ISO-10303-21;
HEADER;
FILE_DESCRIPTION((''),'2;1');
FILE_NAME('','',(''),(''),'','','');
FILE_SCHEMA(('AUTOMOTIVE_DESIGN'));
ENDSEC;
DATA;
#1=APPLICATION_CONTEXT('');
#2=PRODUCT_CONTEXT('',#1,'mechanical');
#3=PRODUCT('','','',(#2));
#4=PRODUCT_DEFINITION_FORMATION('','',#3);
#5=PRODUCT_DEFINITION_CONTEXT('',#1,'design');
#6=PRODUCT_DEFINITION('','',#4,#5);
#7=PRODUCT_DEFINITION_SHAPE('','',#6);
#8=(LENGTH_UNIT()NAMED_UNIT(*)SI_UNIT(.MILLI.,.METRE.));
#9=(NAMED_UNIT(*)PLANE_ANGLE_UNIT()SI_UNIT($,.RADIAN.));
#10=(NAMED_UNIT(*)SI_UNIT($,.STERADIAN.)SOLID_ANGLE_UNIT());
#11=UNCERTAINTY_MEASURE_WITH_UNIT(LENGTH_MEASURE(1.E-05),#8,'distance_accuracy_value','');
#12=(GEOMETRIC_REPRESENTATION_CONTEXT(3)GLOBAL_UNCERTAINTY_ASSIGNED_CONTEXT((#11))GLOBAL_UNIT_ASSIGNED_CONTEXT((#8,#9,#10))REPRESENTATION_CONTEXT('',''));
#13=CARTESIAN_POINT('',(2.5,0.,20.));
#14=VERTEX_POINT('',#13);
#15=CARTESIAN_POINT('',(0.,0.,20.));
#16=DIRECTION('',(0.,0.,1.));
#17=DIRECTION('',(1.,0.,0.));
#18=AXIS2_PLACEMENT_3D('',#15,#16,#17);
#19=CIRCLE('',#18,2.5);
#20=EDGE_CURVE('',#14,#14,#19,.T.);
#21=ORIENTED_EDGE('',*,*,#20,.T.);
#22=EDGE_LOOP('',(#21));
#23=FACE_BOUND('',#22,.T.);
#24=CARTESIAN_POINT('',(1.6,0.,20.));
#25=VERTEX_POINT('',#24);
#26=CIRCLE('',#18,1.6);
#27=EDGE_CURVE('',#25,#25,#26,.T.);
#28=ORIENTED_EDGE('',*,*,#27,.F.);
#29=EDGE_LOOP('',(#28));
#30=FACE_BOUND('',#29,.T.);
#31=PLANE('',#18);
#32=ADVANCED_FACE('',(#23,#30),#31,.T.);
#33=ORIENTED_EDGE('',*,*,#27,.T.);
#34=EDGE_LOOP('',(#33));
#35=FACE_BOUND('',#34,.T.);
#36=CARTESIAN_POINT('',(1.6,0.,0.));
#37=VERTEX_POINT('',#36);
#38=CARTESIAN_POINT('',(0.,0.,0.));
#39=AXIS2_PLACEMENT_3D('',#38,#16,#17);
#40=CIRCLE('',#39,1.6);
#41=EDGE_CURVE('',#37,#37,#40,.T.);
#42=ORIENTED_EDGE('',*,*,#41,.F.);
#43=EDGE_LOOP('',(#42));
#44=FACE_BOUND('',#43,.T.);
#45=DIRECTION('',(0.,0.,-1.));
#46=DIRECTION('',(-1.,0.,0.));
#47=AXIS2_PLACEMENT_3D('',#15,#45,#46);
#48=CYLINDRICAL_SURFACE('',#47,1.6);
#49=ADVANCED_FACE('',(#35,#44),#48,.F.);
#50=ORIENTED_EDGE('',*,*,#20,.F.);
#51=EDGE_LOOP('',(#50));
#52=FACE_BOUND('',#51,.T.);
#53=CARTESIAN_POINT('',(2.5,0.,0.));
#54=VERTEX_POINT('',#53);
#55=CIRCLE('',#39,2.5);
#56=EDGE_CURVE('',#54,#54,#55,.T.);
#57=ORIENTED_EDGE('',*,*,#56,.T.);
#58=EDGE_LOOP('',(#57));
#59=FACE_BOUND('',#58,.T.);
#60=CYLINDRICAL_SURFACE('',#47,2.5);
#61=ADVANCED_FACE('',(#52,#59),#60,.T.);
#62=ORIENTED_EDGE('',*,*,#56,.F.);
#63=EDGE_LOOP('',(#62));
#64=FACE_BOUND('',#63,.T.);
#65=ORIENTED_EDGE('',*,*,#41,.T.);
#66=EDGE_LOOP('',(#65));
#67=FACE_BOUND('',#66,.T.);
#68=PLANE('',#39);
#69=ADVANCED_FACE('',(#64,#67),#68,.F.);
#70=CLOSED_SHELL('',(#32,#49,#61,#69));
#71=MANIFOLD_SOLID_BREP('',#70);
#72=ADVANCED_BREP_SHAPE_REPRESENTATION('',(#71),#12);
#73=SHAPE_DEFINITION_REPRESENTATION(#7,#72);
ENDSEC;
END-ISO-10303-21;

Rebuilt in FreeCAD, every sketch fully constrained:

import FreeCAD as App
import Part
import Sketcher
from FreeCAD import Vector
Q = App.Units.Quantity

doc = App.newDocument("Part")
params = doc.addObject("Spreadsheet::Sheet", "Params")
for row, (alias, value) in enumerate([
    ("sketch1_diameter", "5 mm"),
    ("sketch1_diameter2", "3.2 mm"),
    ("pad1_length", "20 mm"),
], start=1):
    params.set(f"A{row}", alias)
    params.set(f"B{row}", "=" + value)
    params.setAlias(f"B{row}", alias)

body = doc.addObject("PartDesign::Body", "Body")

sketch1 = body.newObject("Sketcher::SketchObject", "Sketch")
sketch1.AttachmentSupport = (doc.getObject("XY_Plane"), [""])
sketch1.MapMode = "FlatFace"
sketch1.addGeometry([
    Part.Circle(Vector(0, 0, 0), Vector(0, 0, 1), 2.5),
    Part.Circle(Vector(0, 0, 0), Vector(0, 0, 1), 1.6),
], False)
sketch1.addConstraint([
    Sketcher.Constraint("Coincident", 0, 3, -1, 1),
    Sketcher.Constraint("Coincident", 1, 3, -1, 1),
    Sketcher.Constraint("Diameter", 0, Q("5 mm")),
    Sketcher.Constraint("Diameter", 1, Q("3.2 mm")),
])
sketch1.setExpression("Constraints[2]", "Params.sketch1_diameter")
sketch1.setExpression("Constraints[3]", "Params.sketch1_diameter2")
pad1 = body.newObject("PartDesign::Pad", "Pad")
pad1.Profile = sketch1
pad1.setExpression("Length", "Params.pad1_length")

doc.recompute()
